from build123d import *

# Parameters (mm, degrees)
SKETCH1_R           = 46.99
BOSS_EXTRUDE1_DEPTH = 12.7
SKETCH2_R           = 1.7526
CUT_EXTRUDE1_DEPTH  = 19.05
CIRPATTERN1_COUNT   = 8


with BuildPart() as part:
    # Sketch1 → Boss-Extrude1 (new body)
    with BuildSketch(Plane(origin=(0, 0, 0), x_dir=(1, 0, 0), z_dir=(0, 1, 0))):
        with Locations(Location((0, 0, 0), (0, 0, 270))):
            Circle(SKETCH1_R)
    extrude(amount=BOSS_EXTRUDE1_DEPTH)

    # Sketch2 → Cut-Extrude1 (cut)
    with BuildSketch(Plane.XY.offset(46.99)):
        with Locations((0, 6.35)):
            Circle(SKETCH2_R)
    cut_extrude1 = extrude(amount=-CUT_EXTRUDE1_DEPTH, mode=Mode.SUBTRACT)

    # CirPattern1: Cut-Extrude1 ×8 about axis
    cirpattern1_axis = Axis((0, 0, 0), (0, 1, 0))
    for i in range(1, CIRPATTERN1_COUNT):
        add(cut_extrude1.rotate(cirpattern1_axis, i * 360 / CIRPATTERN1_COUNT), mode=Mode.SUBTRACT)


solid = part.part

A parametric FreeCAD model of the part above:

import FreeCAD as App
import Part
import Sketcher
Q = App.Units.Quantity

doc = App.newDocument("Part")
body = doc.addObject("PartDesign::Body", "Body")

# Sketch on XZ plane
sketch1 = body.newObject("Sketcher::SketchObject", "Sketch")
sketch1.AttachmentSupport = (doc.getObject("XZ_Plane"), [""])
sketch1.MapMode = "FlatFace"
sketch1.addGeometry(Part.Circle(App.Vector(0, 0, 0), App.Vector(0, 0, 1), 47), False)
sketch1.addConstraint(Sketcher.Constraint("Coincident", 0, 3, -1, 1))
sketch1.addConstraint(Sketcher.Constraint("Diameter", 0, Q("3.7 in")))
pad1 = body.newObject("PartDesign::Pad", "Pad")
pad1.Profile = sketch1
pad1.Length = Q("0.5 in")
pad1.Reversed = True

# Sketch on XY plane
sketch2 = body.newObject("Sketcher::SketchObject", "Sketch001")
sketch2.AttachmentSupport = (doc.getObject("XY_Plane"), [""])
sketch2.MapMode = "FlatFace"
sketch2.AttachmentOffset = App.Placement(App.Vector(0, 0, 1.85 * 25.4), App.Rotation())
sketch2.addGeometry(Part.Circle(App.Vector(0, 6.3, 0), App.Vector(0, 0, 1), 1.8), False)
sketch2.addConstraint(Sketcher.Constraint("PointOnObject", 0, 3, -2))
sketch2.addConstraint(Sketcher.Constraint("Diameter", 0, Q("0.138 in")))
sketch2.addConstraint(Sketcher.Constraint("DistanceY", -1, 1, 0, 3, Q("0.25 in")))
pocket1 = body.newObject("PartDesign::Pocket", "Pocket")
pocket1.Profile = sketch2
pocket1.Length = Q("0.75 in")
doc.recompute()

polarpattern = body.newObject("PartDesign::PolarPattern", "PolarPattern")
polarpattern.Originals = [pocket1]
polarpattern.Axis = (doc.getObject("Y_Axis"), [""])
polarpattern.Angle = 360
polarpattern.Occurrences = 8
body.Tip = polarpattern

doc.recompute()
